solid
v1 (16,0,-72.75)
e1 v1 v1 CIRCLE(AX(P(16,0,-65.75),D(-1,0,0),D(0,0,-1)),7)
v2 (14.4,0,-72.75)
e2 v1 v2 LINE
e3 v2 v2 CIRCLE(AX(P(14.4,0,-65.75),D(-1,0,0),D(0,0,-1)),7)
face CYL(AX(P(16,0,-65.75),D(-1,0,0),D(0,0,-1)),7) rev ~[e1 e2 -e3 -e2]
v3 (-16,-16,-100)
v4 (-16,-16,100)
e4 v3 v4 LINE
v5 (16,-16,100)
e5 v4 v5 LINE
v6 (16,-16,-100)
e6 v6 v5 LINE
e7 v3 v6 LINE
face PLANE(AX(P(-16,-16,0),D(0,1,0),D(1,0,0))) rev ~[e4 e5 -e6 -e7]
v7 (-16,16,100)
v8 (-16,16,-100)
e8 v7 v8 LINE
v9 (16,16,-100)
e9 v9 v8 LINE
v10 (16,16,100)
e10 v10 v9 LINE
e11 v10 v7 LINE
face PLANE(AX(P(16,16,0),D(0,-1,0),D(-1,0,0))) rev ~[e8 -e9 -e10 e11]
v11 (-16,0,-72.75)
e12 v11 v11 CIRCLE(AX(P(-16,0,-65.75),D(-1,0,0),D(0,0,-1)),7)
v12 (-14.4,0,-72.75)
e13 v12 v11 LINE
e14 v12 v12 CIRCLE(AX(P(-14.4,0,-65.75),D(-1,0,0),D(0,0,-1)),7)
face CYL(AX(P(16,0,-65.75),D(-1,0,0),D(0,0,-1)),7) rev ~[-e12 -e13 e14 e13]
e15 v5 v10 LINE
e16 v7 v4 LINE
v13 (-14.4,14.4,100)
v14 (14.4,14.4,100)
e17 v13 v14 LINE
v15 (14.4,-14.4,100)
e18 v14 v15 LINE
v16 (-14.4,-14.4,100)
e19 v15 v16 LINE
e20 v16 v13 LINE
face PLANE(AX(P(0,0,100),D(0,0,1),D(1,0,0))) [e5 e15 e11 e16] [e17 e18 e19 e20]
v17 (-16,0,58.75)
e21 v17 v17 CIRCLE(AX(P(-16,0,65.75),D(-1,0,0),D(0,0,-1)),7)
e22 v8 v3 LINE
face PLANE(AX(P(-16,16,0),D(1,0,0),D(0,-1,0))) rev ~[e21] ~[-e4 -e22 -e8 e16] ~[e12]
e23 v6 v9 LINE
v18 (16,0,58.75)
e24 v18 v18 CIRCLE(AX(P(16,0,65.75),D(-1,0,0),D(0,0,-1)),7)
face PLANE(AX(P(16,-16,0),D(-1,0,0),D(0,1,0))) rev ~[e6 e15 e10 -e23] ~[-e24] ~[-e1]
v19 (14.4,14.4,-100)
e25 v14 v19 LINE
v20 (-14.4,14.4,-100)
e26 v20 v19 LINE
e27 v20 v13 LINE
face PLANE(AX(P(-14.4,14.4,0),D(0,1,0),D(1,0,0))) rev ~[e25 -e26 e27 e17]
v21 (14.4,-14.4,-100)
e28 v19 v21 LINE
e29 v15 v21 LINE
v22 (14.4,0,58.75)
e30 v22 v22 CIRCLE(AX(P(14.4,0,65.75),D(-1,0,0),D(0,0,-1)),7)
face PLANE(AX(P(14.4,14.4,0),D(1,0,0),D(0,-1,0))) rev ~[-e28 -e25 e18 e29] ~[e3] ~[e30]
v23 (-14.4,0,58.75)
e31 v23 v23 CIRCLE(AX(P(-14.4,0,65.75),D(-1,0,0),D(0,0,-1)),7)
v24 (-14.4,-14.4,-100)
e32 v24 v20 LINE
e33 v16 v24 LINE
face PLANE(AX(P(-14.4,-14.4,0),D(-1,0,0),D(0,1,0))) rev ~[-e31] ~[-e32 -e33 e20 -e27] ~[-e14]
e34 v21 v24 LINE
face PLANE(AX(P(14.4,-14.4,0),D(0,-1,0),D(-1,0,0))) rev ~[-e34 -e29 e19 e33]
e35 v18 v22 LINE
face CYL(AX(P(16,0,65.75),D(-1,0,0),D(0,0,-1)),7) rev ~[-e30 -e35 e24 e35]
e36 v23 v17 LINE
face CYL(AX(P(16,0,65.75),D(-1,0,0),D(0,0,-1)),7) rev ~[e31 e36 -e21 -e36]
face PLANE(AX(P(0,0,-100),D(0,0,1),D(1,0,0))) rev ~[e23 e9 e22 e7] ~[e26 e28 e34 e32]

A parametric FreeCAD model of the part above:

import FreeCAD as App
import Part
import Sketcher
from FreeCAD import Vector
Q = App.Units.Quantity


def add_polygon(sketch, points):
    """Adds a closed chain of lines whose ends are joined by coincident constraints."""
    first, n = sketch.GeometryCount, len(points)
    for a, b in zip(points, points[1:] + points[:1]):
        sketch.addGeometry(Part.LineSegment(App.Vector(*a, 0), App.Vector(*b, 0)), False)
    for i in range(n):
        sketch.addConstraint(Sketcher.Constraint("Coincident", first + i, 2, first + (i + 1) % n, 1))

doc = App.newDocument("Part")
body = doc.addObject("PartDesign::Body", "Body")

# Sketch on XY plane
sketch1 = doc.addObject("Sketcher::SketchObject", "Sketch")
body.addObject(sketch1)
sketch1.AttachmentSupport = (doc.XY_Plane, [""])
sketch1.MapMode = "FlatFace"
add_polygon(sketch1, [(-16, 16), (-16, -16), (16, -16), (16, 16)])  # lines 0-3
add_polygon(sketch1, [(-14.4, -14.4), (-14.4, 14.4), (14.4, 14.4), (14.4, -14.4)])  # lines 4-7
sketch1.addConstraint([
    Sketcher.Constraint("Vertical", 0),
    Sketcher.Constraint("Horizontal", 1),
    Sketcher.Constraint("Vertical", 2),
    Sketcher.Constraint("Horizontal", 3),
    Sketcher.Constraint("Vertical", 4),
    Sketcher.Constraint("Horizontal", 5),
    Sketcher.Constraint("Vertical", 6),
    Sketcher.Constraint("Horizontal", 7),
    Sketcher.Constraint("Symmetric", 0, 2, 2, 2, -1, 1),
    Sketcher.Constraint("Symmetric", 4, 2, 6, 2, -1, 1),
    Sketcher.Constraint("Equal", 3, 0),
    Sketcher.Constraint("Equal", 7, 4),
    Sketcher.Constraint("DistanceX", 1, 1, 1, 2, Q("32 mm")),
    Sketcher.Constraint("DistanceX", 3, 2, 4, 2, Q("1.6 mm")),
])
pad1 = doc.addObject("PartDesign::Pad", "Pad")
body.addObject(pad1)
pad1.Profile = sketch1
pad1.Length = 200
pad1.Midplane = True

# Sketch on YZ plane
sketch2 = doc.addObject("Sketcher::SketchObject", "Sketch001")
body.addObject(sketch2)
sketch2.AttachmentSupport = (doc.YZ_Plane, [""])
sketch2.MapMode = "FlatFace"
sketch2.AttachmentOffset = App.Placement(Vector(0, 0, 16), App.Rotation())
sketch2.addGeometry([
    Part.Circle(Vector(0, 65.75, 0), Vector(0, 0, 1), 7),
    Part.Circle(Vector(0, -65.75, 0), Vector(0, 0, 1), 7),
], False)
sketch2.addConstraint([
    Sketcher.Constraint("Equal", 0, 1),
    Sketcher.Constraint("Symmetric", 0, 3, 1, 3, -1, 1),
    Sketcher.Constraint("PointOnObject", 0, 3, -2),
    Sketcher.Constraint("Diameter", 0, Q("14 mm")),
    Sketcher.Constraint("DistanceY", 1, 3, 0, 3, Q("131.5 mm")),
])
doc.recompute()
hole = doc.addObject("PartDesign::Hole", "Hole")
body.addObject(hole)
hole.Profile = sketch2
hole.ThreadType = "None"
hole.Diameter = 14
hole.DepthType = "ThroughAll"

doc.recompute()
